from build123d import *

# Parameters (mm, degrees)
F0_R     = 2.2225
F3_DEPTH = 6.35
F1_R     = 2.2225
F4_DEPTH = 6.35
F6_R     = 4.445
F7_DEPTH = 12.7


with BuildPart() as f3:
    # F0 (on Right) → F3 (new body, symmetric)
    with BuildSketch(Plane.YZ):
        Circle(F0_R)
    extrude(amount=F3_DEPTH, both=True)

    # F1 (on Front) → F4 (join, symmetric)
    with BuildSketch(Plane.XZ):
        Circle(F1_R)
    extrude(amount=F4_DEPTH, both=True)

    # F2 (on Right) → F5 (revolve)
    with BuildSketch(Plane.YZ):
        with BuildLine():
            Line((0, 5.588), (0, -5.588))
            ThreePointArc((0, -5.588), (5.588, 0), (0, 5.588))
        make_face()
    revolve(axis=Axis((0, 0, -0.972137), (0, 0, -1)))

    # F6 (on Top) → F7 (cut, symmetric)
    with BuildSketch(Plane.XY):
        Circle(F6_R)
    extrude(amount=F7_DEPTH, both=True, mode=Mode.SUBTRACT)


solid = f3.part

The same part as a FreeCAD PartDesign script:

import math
import FreeCAD as App
import Part
import Sketcher
Q = App.Units.Quantity

doc = App.newDocument("Part")
body = doc.addObject("PartDesign::Body", "Body")

# Sketch on YZ plane
sketch1 = doc.addObject("Sketcher::SketchObject", "Sketch")
body.addObject(sketch1)
sketch1.AttachmentSupport = (doc.YZ_Plane, [""])
sketch1.MapMode = "FlatFace"
sketch1.addGeometry(Part.Circle(App.Vector(0, 0, 0), App.Vector(0, 0, 1), 2.2225), False)
sketch1.addConstraint([
    Sketcher.Constraint("Coincident", 0, 3, -1, 1),
    Sketcher.Constraint("Diameter", 0, Q("0.175 in")),
])
pad1 = doc.addObject("PartDesign::Pad", "Pad")
body.addObject(pad1)
pad1.Profile = sketch1
pad1.Length = Q("0.5 in")
pad1.Midplane = True

# Sketch on XZ plane
sketch2 = doc.addObject("Sketcher::SketchObject", "Sketch001")
body.addObject(sketch2)
sketch2.AttachmentSupport = (doc.XZ_Plane, [""])
sketch2.MapMode = "FlatFace"
sketch2.addGeometry(Part.Circle(App.Vector(0, 0, 0), App.Vector(0, 0, 1), 2.2225), False)
sketch2.addConstraint([
    Sketcher.Constraint("Coincident", 0, 3, -1, 1),
    Sketcher.Constraint("Diameter", 0, Q("0.175 in")),
])
pad2 = doc.addObject("PartDesign::Pad", "Pad001")
body.addObject(pad2)
pad2.Profile = sketch2
pad2.Length = Q("0.5 in")
pad2.Midplane = True

# Sketch on YZ plane
sketch3 = doc.addObject("Sketcher::SketchObject", "Sketch002")
body.addObject(sketch3)
sketch3.AttachmentSupport = (doc.YZ_Plane, [""])
sketch3.MapMode = "FlatFace"
sketch3.addGeometry([
    Part.LineSegment(App.Vector(0, 5.588, 0), App.Vector(0, -5.588, 0)),
    Part.ArcOfCircle(Part.Circle(App.Vector(0, 0, 0), App.Vector(0, 0, 1), 5.588), math.radians(-90), math.radians(90)),
], False)
sketch3.addConstraint([
    Sketcher.Constraint("Coincident", 0, 1, 1, 2),
    Sketcher.Constraint("Coincident", 1, 1, 0, 2),
    Sketcher.Constraint("Vertical", 0),
    Sketcher.Constraint("Coincident", 1, 3, -1, 1),
    Sketcher.Constraint("PointOnObject", 0, 1, -2),
    Sketcher.Constraint("Radius", 1, Q("0.22 in")),
])
revolution = doc.addObject("PartDesign::Revolution", "Revolution")
body.addObject(revolution)
revolution.Profile = sketch3
revolution.ReferenceAxis = (sketch3, ["V_Axis"])
revolution.Angle = 360

# Sketch on XY plane
sketch4 = doc.addObject("Sketcher::SketchObject", "Sketch003")
body.addObject(sketch4)
sketch4.AttachmentSupport = (doc.XY_Plane, [""])
sketch4.MapMode = "FlatFace"
sketch4.addGeometry(Part.Circle(App.Vector(0, 0, 0), App.Vector(0, 0, 1), 4.445), False)
sketch4.addConstraint([
    Sketcher.Constraint("Coincident", 0, 3, -1, 1),
    Sketcher.Constraint("Diameter", 0, Q("0.35 in")),
])
pocket1 = doc.addObject("PartDesign::Pocket", "Pocket")
body.addObject(pocket1)
pocket1.Profile = sketch4
pocket1.Length = Q("1 in")
pocket1.Midplane = True

doc.recompute()
